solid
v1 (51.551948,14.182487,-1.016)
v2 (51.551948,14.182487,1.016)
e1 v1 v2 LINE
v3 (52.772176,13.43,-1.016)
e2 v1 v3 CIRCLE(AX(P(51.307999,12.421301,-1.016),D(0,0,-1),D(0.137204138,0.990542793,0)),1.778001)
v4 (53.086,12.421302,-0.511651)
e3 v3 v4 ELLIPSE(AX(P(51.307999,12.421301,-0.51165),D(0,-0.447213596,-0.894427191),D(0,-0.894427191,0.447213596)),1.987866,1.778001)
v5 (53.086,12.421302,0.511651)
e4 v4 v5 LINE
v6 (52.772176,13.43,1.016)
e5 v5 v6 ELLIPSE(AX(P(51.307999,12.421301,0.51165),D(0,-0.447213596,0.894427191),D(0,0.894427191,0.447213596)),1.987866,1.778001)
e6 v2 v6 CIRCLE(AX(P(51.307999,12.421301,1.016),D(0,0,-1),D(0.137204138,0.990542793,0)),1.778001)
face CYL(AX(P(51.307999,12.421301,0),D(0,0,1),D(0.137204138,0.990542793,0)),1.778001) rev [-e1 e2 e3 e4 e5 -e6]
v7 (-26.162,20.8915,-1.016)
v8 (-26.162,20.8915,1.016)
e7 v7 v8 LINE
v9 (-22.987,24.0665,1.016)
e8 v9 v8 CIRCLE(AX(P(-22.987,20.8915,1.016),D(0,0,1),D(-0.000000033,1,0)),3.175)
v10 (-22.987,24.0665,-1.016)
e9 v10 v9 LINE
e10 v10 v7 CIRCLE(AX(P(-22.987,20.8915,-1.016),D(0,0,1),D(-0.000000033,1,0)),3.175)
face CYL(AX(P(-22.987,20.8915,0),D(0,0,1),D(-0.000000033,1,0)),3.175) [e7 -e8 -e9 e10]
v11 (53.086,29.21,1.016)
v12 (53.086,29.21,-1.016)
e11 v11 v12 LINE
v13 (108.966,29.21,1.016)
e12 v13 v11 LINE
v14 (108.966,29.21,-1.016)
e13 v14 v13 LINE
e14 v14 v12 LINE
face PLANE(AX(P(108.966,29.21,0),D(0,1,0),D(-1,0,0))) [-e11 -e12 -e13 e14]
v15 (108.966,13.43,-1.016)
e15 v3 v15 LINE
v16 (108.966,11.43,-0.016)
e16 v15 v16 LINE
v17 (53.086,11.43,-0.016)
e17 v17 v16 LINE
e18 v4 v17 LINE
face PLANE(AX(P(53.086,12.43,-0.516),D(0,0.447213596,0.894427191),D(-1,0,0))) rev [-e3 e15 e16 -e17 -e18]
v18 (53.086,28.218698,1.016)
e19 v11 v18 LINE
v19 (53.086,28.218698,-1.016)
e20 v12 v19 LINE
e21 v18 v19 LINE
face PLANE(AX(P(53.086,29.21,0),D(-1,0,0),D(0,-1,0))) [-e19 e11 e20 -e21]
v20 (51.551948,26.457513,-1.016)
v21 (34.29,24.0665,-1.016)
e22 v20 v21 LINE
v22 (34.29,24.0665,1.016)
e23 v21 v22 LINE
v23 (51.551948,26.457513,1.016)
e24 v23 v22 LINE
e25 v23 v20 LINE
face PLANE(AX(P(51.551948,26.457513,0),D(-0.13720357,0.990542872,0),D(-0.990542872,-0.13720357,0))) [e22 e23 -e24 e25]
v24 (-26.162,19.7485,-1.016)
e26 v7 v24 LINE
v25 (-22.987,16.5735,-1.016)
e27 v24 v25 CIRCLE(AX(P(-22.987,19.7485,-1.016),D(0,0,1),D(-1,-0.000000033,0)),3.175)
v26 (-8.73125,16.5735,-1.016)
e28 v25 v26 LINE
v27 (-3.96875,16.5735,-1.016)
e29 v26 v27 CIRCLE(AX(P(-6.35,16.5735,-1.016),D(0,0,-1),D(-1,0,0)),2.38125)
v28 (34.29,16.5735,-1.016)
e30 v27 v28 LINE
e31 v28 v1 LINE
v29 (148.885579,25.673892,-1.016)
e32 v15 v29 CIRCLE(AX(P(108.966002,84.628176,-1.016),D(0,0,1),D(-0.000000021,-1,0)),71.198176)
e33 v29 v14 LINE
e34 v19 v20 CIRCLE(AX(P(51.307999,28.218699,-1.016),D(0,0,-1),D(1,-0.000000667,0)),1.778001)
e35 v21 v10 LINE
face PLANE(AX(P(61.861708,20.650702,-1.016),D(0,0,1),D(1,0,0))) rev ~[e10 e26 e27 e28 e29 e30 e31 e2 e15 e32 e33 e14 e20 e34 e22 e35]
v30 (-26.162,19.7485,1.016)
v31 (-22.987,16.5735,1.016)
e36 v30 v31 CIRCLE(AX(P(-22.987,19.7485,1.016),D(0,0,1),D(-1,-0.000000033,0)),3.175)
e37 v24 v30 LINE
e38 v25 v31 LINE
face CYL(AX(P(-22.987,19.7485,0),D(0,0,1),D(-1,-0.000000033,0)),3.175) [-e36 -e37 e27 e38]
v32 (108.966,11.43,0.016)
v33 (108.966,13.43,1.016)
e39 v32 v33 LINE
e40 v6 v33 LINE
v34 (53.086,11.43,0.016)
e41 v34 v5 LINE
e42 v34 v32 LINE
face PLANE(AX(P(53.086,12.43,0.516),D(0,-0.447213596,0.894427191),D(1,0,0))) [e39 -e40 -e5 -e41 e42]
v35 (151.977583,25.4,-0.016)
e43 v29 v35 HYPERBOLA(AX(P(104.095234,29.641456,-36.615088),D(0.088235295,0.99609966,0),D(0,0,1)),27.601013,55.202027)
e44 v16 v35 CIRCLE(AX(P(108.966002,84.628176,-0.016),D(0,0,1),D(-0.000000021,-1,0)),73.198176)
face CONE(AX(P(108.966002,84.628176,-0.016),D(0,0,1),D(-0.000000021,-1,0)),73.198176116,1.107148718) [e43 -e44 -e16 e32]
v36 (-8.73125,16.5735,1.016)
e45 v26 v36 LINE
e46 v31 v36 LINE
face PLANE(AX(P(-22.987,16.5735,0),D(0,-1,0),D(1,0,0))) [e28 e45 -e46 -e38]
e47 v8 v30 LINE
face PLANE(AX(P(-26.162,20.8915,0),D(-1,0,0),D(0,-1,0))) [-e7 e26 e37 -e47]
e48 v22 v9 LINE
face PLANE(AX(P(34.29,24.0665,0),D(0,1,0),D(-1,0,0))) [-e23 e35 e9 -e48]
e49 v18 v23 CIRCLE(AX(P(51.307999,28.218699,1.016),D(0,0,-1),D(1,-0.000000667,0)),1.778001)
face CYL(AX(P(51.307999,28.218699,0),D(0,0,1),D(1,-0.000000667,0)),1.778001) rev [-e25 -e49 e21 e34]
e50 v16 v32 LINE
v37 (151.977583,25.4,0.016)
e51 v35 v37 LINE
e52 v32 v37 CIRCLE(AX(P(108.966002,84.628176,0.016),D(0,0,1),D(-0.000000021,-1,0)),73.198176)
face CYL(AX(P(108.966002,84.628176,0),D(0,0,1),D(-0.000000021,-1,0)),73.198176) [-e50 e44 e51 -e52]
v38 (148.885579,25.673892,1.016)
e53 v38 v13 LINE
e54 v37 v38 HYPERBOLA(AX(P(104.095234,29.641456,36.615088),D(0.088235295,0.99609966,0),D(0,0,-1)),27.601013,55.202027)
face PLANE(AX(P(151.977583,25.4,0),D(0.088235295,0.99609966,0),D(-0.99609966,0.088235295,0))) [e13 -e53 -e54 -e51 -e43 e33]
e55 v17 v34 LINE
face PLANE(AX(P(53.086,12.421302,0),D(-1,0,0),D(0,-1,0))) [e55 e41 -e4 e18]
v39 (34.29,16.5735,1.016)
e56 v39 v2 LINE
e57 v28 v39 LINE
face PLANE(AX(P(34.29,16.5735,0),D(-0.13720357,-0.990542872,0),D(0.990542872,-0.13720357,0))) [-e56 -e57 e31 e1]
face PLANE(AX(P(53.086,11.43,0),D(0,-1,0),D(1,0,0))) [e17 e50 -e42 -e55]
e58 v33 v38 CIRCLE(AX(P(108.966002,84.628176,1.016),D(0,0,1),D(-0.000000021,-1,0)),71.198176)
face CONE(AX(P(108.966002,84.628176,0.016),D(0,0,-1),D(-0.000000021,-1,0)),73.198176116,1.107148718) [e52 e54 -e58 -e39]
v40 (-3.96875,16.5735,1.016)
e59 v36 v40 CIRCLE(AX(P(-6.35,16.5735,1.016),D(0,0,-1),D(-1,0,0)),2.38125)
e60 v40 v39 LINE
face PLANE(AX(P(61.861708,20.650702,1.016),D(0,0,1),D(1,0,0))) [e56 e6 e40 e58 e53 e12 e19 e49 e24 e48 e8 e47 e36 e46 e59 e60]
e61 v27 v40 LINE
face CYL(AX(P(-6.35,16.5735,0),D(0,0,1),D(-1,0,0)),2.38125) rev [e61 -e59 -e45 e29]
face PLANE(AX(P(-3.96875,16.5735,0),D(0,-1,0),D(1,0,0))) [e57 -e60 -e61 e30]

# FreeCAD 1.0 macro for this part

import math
import FreeCAD as App
import Part
import Sketcher

V = App.Vector
Q = App.Units.Quantity


def edges_at(feature, points):
    """Names of the edges that pass closest to the given points."""
    edges = feature.Shape.Edges
    near = lambda p: min(range(len(edges)), key=lambda i: edges[i].distToShape(Part.Vertex(*p))[0])
    return sorted({f"Edge{near(p) + 1}" for p in points})

doc = App.newDocument("Part")
params = doc.addObject("Spreadsheet::Sheet", "Params")
for row, (alias, value) in enumerate([
    ("sketch1_radius", "0.07 in"),
    ("sketch1_width", "2.2 in"),
    ("sketch1_radius2", "0.125 in"),
    ("sketch1_radius3", "0.09375 in"),
    ("sketch1_length", "1.7 in"),
    ("pad1_length", "0.08 in"),
    ("chamfer_size", "1 mm"),
    ("chamfer_size2", "2 mm"),
    ("chamfer2_size", "2 mm"),
    ("chamfer2_size2", "1 mm"),
], start=1):
    params.set(f"A{row}", alias)
    params.set(f"B{row}", "=" + value)
    params.setAlias(f"B{row}", alias)

body = doc.addObject("PartDesign::Body", "Body")

# Sketch on XY plane
sketch1 = doc.addObject("Sketcher::SketchObject", "Sketch")
body.addObject(sketch1)
sketch1.AttachmentSupport = (doc.XY_Plane, [""])
sketch1.MapMode = "FlatFace"
sketch1.addGeometry([
    Part.LineSegment(V(51.6, 26.5, 0), V(34.3, 24.1, 0)),  # 0
    Part.LineSegment(V(34.3, 24.1, 0), V(-23, 24.1, 0)),  # 1
    Part.ArcOfCircle(Part.Circle(V(-23, 20.9, 0), V(0, 0, 1), 3.2), math.radians(90), math.radians(180)),  # 2
    Part.LineSegment(V(-26.2, 20.9, 0), V(-26.2, 19.7, 0)),  # 3
    Part.ArcOfCircle(Part.Circle(V(-23, 19.7, 0), V(0, 0, 1), 3.2), math.radians(-180), math.radians(-90)),  # 4
    Part.LineSegment(V(-23, 16.6, 0), V(-8.7, 16.6, 0)),  # 5
    Part.ArcOfCircle(Part.Circle(V(-6.3, 16.6, 0), V(0, 0, 1), 2.4), math.radians(0), math.radians(180)),  # 6
    Part.LineSegment(V(-4, 16.6, 0), V(34.3, 16.6, 0)),  # 7
    Part.LineSegment(V(34.3, 16.6, 0), V(51.6, 14.2, 0)),  # 8
    Part.ArcOfCircle(Part.Circle(V(51.3, 12.4, 0), V(0, 0, 1), 1.8), math.radians(0), math.radians(82)),  # 9
    Part.LineSegment(V(53.1, 12.4, 0), V(53.1, 11.4, 0)),  # 10
    Part.LineSegment(V(53.1, 11.4, 0), V(109, 11.4, 0)),  # 11
    Part.ArcOfCircle(Part.Circle(V(109, 84.6, 0), V(0, 0, 1), 73.2), math.radians(-90), math.radians(-54)),  # 12
    Part.LineSegment(V(152, 25.4, 0), V(109, 29.2, 0)),  # 13
    Part.LineSegment(V(109, 29.2, 0), V(53.1, 29.2, 0)),  # 14
    Part.LineSegment(V(53.1, 29.2, 0), V(53.1, 28.2, 0)),  # 15
    Part.ArcOfCircle(Part.Circle(V(51.3, 28.2, 0), V(0, 0, 1), 1.8), math.radians(-82), math.radians(0)),  # 16
], False)
sketch1.addConstraint([
    Sketcher.Constraint("Coincident", 0, 2, 1, 1),
    Sketcher.Constraint("Tangent", 1, 2, 2, 1),
    Sketcher.Constraint("Tangent", 2, 2, 3, 1),
    Sketcher.Constraint("Tangent", 3, 2, 4, 1),
    Sketcher.Constraint("Tangent", 4, 2, 5, 1),
    Sketcher.Constraint("Coincident", 5, 2, 6, 2),
    Sketcher.Constraint("Coincident", 6, 1, 7, 1),
    Sketcher.Constraint("Coincident", 7, 2, 8, 1),
    Sketcher.Constraint("Tangent", 8, 2, 9, 2),
    Sketcher.Constraint("Tangent", 9, 1, 10, 1),
    Sketcher.Constraint("Coincident", 10, 2, 11, 1),
    Sketcher.Constraint("Tangent", 11, 2, 12, 1),
    Sketcher.Constraint("Coincident", 12, 2, 13, 1),
    Sketcher.Constraint("Coincident", 13, 2, 14, 1),
    Sketcher.Constraint("Coincident", 14, 2, 15, 1),
    Sketcher.Constraint("Tangent", 15, 2, 16, 2),
    Sketcher.Constraint("Tangent", 16, 1, 0, 1),
    Sketcher.Constraint("Horizontal", 1),
    Sketcher.Constraint("Vertical", 3),
    Sketcher.Constraint("Horizontal", 5),
    Sketcher.Constraint("Horizontal", 7),
    Sketcher.Constraint("Vertical", 10),
    Sketcher.Constraint("Horizontal", 11),
    Sketcher.Constraint("Horizontal", 14),
    Sketcher.Constraint("Vertical", 15),
    Sketcher.Constraint("Equal", 2, 4),
    Sketcher.Constraint("Equal", 9, 16),
    Sketcher.Constraint("Horizontal", 6, 3, 4, 2),
    Sketcher.Constraint("Horizontal", 5, 2, 6, 1),
    Sketcher.Constraint("Vertical", 9, 3, 16, 3),
    Sketcher.Constraint("Vertical", 0, 2, 7, 2),
    Sketcher.Constraint("Vertical", 11, 2, 13, 2),
    Sketcher.Constraint("Vertical", 8, 2, 16, 1),
    Sketcher.Constraint("Equal", 10, 15),
    Sketcher.Constraint("Radius", 9, Q("0.07 in")),
    Sketcher.Constraint("DistanceX", 11, 1, 11, 2, Q("2.2 in")),
    Sketcher.Constraint("DistanceY", -1, 1, 12, 2, Q("1 in")),
    Sketcher.Constraint("Radius", 2, Q("0.125 in")),
    Sketcher.Constraint("Radius", 6, Q("0.09375 in")),
    Sketcher.Constraint("Distance", 13, Q("1.7 in")),
    Sketcher.Constraint("DistanceX", 6, 3, 0, 2, Q("1.6 in")),
    Sketcher.Constraint("DistanceY", 11, 2, 13, 2, Q("0.7 in")),
    Sketcher.Constraint("DistanceX", 1, 2, 1, 1, Q("2.255 in")),
    Sketcher.Constraint("DistanceY", 3, 2, 3, 1, Q("0.045 in")),
    Sketcher.Constraint("DistanceX", 6, 3, -1, 1, Q("0.25 in")),
    Sketcher.Constraint("DistanceX", -1, 1, 9, 3, Q("2.02 in")),
    Sketcher.Constraint("DistanceY", -1, 1, 10, 2, Q("0.45 in")),
    Sketcher.Constraint("DistanceY", -1, 1, 9, 3, 12.421301),
])
sketch1.setExpression("Constraints[34]", "Params.sketch1_radius")
sketch1.setExpression("Constraints[35]", "Params.sketch1_width")
sketch1.setExpression("Constraints[37]", "Params.sketch1_radius2")
sketch1.setExpression("Constraints[38]", "Params.sketch1_radius3")
sketch1.setExpression("Constraints[39]", "Params.sketch1_length")
pad1 = doc.addObject("PartDesign::Pad", "Pad")
body.addObject(pad1)
pad1.Profile = sketch1
pad1.setExpression("Length", "Params.pad1_length")
pad1.Midplane = True
doc.recompute()

chamfer = doc.addObject("PartDesign::Chamfer", "Chamfer")
body.addObject(chamfer)
chamfer.Base = (pad1, edges_at(pad1, [(81.026, 11.43, 1.016)]))
chamfer.ChamferType = "Two distances"
chamfer.setExpression("Size", "Params.chamfer_size")
chamfer.setExpression("Size2", "Params.chamfer_size2")
doc.recompute()

chamfer2 = doc.addObject("PartDesign::Chamfer", "Chamfer001")
body.addObject(chamfer2)
chamfer2.Base = (chamfer, edges_at(chamfer, [(81.026, 11.43, -1.016)]))
chamfer2.ChamferType = "Two distances"
chamfer2.setExpression("Size", "Params.chamfer2_size")
chamfer2.setExpression("Size2", "Params.chamfer2_size2")

doc.recompute()
